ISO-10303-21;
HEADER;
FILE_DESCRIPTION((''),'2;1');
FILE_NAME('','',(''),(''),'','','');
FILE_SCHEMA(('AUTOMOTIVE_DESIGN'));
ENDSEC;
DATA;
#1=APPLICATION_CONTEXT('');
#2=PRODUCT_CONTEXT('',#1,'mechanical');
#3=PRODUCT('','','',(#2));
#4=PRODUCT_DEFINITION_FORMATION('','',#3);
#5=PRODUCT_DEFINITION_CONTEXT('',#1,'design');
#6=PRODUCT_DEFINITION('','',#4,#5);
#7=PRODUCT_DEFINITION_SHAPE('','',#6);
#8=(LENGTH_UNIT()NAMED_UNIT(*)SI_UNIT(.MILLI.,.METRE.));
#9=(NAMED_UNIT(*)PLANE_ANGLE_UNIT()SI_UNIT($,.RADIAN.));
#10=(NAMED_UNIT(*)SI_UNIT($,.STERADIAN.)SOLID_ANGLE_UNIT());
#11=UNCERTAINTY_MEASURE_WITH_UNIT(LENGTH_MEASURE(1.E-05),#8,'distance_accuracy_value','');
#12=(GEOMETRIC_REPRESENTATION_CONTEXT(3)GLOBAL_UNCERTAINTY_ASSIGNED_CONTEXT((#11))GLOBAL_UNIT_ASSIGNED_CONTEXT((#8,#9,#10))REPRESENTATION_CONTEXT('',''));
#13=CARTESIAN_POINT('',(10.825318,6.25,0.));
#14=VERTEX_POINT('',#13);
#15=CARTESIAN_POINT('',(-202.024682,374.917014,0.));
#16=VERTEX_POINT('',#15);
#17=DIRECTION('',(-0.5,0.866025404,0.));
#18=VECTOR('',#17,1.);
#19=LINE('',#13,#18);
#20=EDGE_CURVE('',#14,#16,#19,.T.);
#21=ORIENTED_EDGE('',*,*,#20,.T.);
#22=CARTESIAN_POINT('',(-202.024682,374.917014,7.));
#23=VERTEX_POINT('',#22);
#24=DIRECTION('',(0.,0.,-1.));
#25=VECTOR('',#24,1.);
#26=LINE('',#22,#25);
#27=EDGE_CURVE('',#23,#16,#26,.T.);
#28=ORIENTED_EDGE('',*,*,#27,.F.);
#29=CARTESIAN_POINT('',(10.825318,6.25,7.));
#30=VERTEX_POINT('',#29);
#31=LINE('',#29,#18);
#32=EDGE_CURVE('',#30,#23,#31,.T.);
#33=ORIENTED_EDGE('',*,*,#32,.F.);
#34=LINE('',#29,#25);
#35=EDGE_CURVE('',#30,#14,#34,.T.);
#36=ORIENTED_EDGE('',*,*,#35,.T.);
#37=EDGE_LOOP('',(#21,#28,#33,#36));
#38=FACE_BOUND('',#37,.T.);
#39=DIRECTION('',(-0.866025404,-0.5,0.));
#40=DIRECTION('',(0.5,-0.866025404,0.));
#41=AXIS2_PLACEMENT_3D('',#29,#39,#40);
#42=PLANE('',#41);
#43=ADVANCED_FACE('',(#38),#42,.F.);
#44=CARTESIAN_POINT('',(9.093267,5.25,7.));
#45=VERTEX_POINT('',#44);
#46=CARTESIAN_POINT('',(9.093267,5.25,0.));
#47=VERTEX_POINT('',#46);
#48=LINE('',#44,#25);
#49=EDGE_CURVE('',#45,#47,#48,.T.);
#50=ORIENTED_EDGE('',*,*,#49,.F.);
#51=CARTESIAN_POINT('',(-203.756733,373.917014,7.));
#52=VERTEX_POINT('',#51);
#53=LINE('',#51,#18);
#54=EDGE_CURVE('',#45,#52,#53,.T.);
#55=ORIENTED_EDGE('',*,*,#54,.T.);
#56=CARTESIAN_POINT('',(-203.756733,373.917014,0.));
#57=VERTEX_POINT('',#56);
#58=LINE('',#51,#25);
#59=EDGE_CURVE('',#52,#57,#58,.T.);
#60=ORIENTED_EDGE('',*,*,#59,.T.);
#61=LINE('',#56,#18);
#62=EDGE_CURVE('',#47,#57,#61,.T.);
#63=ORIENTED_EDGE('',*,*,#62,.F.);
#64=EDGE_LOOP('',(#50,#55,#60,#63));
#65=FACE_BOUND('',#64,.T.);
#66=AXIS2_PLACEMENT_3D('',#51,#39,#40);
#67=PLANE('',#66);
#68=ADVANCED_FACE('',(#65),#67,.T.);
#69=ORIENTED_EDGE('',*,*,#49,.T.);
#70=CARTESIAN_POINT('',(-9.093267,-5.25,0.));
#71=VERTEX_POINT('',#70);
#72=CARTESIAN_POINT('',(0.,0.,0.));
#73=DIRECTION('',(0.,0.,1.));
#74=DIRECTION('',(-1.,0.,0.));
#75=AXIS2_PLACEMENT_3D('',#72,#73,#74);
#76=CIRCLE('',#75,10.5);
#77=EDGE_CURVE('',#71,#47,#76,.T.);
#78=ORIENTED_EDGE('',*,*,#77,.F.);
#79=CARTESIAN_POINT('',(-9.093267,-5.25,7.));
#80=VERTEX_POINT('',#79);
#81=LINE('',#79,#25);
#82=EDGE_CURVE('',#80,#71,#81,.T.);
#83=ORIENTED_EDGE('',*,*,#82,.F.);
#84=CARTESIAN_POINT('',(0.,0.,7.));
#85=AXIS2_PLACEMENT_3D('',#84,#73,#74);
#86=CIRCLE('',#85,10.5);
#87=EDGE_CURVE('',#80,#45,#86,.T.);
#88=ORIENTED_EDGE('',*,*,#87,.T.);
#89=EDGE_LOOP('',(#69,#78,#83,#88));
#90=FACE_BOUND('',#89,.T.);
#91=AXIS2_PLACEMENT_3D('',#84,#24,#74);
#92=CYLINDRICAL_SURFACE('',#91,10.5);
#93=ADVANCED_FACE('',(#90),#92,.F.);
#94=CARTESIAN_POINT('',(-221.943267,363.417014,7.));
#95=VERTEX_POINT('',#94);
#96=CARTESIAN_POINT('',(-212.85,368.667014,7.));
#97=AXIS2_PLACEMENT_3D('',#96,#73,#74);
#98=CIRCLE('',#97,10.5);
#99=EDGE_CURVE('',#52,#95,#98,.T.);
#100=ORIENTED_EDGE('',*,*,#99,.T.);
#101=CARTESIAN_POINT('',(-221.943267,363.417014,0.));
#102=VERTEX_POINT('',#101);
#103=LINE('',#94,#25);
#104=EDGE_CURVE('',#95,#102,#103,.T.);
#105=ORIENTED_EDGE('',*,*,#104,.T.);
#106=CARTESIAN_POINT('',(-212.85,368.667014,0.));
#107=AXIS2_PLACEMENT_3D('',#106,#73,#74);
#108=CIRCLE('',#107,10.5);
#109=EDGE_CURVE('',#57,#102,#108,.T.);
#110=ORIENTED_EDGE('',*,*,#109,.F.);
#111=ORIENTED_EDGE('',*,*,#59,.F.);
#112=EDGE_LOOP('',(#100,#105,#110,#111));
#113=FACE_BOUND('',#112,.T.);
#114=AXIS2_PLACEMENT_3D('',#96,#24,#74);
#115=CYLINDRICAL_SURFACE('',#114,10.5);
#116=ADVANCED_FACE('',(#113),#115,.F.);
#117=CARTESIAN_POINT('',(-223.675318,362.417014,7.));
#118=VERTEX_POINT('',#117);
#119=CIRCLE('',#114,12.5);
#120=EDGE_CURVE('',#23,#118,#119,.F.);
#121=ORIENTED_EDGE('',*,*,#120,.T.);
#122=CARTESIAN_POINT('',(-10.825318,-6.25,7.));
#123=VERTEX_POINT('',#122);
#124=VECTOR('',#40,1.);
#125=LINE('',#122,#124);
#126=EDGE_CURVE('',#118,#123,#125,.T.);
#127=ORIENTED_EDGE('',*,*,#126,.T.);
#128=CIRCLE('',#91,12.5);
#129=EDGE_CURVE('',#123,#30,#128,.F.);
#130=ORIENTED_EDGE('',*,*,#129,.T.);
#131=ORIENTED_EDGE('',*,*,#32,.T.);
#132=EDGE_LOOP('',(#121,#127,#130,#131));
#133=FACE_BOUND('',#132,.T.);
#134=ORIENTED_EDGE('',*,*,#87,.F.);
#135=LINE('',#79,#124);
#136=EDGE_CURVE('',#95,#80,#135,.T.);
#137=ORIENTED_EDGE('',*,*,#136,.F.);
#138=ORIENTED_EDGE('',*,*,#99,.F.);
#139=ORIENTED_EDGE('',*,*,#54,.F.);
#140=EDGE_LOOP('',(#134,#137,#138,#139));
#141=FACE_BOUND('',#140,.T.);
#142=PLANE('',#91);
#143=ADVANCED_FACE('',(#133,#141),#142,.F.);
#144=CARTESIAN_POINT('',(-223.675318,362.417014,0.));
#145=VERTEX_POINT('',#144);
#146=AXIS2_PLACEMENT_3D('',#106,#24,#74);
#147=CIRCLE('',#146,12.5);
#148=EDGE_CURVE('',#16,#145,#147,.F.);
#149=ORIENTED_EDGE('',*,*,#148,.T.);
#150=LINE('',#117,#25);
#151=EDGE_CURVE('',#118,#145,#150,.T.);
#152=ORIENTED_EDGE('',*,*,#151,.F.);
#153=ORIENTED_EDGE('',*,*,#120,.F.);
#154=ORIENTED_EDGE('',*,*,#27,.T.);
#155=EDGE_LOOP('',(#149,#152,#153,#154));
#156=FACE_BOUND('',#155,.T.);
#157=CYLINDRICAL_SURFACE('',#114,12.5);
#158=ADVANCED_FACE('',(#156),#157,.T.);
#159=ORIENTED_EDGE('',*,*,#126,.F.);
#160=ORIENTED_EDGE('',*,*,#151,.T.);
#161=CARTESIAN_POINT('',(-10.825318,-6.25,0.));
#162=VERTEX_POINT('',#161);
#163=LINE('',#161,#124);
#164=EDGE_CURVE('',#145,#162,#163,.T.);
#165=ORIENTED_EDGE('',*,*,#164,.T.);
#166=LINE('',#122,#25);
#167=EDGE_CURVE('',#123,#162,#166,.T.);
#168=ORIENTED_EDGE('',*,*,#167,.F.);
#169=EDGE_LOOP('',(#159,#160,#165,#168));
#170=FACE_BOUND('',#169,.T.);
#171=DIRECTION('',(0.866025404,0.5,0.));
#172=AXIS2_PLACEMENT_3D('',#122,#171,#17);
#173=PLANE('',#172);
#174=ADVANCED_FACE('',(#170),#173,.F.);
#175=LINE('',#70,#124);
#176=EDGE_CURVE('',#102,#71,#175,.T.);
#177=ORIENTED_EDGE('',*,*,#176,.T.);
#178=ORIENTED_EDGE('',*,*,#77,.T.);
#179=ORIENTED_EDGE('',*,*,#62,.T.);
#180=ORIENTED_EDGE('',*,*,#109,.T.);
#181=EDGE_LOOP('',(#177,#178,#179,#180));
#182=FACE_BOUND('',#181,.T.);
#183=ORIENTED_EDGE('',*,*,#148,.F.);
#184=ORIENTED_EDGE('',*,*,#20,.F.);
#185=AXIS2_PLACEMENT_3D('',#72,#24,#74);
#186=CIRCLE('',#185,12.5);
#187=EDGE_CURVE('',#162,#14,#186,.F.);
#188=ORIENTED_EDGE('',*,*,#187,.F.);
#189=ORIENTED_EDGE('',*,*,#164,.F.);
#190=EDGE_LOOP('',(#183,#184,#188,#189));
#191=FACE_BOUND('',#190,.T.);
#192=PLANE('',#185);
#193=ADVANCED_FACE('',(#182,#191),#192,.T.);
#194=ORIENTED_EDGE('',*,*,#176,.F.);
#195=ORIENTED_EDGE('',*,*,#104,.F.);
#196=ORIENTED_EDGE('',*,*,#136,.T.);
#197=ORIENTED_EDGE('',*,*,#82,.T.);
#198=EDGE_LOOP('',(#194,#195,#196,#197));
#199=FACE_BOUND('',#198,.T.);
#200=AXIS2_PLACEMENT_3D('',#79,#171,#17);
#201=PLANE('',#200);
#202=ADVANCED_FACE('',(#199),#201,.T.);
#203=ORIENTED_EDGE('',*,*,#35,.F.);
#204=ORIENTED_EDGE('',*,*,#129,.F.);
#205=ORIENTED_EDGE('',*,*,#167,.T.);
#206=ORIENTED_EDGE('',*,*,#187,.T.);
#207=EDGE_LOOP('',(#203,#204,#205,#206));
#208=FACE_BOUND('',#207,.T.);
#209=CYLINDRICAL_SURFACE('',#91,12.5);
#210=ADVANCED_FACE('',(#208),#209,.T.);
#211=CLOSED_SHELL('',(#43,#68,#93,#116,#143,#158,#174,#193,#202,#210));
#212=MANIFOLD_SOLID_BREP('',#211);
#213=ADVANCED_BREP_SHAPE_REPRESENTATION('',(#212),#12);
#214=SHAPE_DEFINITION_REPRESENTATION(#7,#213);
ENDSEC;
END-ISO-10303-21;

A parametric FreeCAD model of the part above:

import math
import FreeCAD as App
import Part
import Sketcher

V = App.Vector
Q = App.Units.Quantity

doc = App.newDocument("Part")
body = doc.addObject("PartDesign::Body", "Body")

# Sketch on XY plane
sketch1 = body.newObject("Sketcher::SketchObject", "Sketch")
sketch1.AttachmentSupport = (doc.getObject("XY_Plane"), [""])
sketch1.MapMode = "FlatFace"
sketch1.addGeometry([
    Part.LineSegment(V(11, 6, 0), V(-202, 375, 0)),  # 0
    Part.ArcOfCircle(Part.Circle(V(-213, 369, 0), V(0, 0, 1), 12), math.radians(30), math.radians(210)),  # 1
    Part.LineSegment(V(-224, 362, 0), V(-11, -6, 0)),  # 2
    Part.ArcOfCircle(Part.Circle(V(0, 0, 0), V(0, 0, 1), 12), math.radians(-150), math.radians(30)),  # 3
    Part.LineSegment(V(-204, 374, 0), V(9, 5, 0)),  # 4
    Part.ArcOfCircle(Part.Circle(V(0, 0, 0), V(0, 0, 1), 10), math.radians(-150), math.radians(30)),  # 5
    Part.LineSegment(V(-9, -5, 0), V(-222, 363, 0)),  # 6
    Part.ArcOfCircle(Part.Circle(V(-213, 369, 0), V(0, 0, 1), 10), math.radians(30), math.radians(210)),  # 7
], False)
sketch1.addConstraint([
    Sketcher.Constraint("Tangent", 0, 2, 1, 1),
    Sketcher.Constraint("Tangent", 1, 2, 2, 1),
    Sketcher.Constraint("Tangent", 2, 2, 3, 1),
    Sketcher.Constraint("Tangent", 3, 2, 0, 1),
    Sketcher.Constraint("Tangent", 4, 2, 5, 2),
    Sketcher.Constraint("Tangent", 5, 1, 6, 1),
    Sketcher.Constraint("Tangent", 6, 2, 7, 2),
    Sketcher.Constraint("Tangent", 7, 1, 4, 1),
    Sketcher.Constraint("Coincident", 3, 3, -1, 1),
    Sketcher.Constraint("Coincident", 5, 3, -1, 1),
    Sketcher.Constraint("Coincident", 7, 3, 1, 3),
    Sketcher.Constraint("Equal", 1, 3),
    Sketcher.Constraint("Equal", 5, 7),
    Sketcher.Constraint("Radius", 1, Q("12.5 mm")),
    Sketcher.Constraint("Radius", 5, Q("10.5 mm")),
    Sketcher.Constraint("Angle", 0, Q("120 deg")),
    Sketcher.Constraint("Distance", 0, Q("425.7 mm")),
])
pad1 = body.newObject("PartDesign::Pad", "Pad")
pad1.Profile = sketch1
pad1.Length = 7

doc.recompute()
